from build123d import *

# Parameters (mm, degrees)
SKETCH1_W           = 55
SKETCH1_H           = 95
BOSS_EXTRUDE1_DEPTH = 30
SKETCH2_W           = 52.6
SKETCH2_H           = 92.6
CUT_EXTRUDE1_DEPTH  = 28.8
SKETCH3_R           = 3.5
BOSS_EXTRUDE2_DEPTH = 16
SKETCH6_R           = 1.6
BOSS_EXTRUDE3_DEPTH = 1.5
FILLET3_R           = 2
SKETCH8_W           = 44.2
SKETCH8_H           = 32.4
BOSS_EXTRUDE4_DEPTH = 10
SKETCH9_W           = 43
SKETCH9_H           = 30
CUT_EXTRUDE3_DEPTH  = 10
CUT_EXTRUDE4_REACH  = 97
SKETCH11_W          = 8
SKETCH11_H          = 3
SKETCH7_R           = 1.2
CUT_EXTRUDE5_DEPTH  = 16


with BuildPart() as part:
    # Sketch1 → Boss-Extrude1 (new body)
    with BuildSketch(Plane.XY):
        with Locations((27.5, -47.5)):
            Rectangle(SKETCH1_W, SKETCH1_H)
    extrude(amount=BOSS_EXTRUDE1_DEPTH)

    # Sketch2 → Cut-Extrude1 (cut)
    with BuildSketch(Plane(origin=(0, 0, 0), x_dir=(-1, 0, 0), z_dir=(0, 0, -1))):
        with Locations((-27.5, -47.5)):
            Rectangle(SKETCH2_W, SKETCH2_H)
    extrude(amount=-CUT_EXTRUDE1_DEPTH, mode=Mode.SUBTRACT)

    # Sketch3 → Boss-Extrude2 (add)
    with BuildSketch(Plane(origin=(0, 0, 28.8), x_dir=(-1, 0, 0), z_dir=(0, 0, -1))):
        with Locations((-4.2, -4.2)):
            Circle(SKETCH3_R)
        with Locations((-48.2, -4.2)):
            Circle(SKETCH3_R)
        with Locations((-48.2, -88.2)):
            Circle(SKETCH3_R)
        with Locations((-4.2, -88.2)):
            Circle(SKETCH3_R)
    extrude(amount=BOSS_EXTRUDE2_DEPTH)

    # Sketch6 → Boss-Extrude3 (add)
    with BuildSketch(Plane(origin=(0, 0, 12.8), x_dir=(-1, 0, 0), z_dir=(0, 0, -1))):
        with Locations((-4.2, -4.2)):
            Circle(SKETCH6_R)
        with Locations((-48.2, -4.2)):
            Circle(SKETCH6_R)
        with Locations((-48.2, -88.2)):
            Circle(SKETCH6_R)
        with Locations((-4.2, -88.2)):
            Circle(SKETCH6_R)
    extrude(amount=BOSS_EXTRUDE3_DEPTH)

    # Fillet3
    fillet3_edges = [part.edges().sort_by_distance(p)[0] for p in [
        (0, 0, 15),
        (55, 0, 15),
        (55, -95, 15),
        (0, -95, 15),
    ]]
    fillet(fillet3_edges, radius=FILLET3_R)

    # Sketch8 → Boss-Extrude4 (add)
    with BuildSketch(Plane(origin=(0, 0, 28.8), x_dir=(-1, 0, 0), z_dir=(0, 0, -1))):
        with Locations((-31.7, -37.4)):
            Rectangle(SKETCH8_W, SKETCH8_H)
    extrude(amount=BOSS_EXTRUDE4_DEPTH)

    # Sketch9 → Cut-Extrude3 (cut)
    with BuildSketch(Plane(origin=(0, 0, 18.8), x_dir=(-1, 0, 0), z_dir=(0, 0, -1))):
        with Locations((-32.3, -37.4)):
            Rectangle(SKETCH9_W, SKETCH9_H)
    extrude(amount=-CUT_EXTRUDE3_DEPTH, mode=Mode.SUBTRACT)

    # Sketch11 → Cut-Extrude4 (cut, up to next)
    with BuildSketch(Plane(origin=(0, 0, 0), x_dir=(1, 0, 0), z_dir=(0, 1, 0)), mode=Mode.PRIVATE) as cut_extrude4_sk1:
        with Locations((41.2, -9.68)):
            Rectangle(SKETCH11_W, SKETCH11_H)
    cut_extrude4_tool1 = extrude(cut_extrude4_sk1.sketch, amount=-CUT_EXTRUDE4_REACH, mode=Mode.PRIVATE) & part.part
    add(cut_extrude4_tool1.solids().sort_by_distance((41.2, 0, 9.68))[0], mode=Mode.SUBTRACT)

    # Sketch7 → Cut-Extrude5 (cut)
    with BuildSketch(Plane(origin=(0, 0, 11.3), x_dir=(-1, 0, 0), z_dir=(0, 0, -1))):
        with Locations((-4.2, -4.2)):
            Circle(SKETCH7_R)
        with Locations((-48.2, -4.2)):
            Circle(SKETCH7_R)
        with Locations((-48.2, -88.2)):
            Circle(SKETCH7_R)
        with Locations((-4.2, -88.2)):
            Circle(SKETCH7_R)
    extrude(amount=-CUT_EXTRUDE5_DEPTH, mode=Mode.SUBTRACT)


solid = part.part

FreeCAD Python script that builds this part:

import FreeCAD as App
import Part
import Sketcher


def edges_at(feature, points):
    """Names of the edges that pass closest to the given points."""
    edges = feature.Shape.Edges
    near = lambda p: min(range(len(edges)), key=lambda i: edges[i].distToShape(Part.Vertex(*p))[0])
    return sorted({f"Edge{near(p) + 1}" for p in points})

doc = App.newDocument("Part")
params = doc.addObject("Spreadsheet::Sheet", "Params")
for row, (alias, value) in enumerate([
    ("sketch1_width", "55 mm"),
    ("sketch1_height", "95 mm"),
    ("pad1_length", "30 mm"),
    ("sketch2_width", "52.6 mm"),
    ("sketch2_height", "92.6 mm"),
    ("pocket1_length", "28.8 mm"),
    ("sketch3_diameter", "7 mm"),
    ("pad2_length", "16 mm"),
    ("sketch4_diameter", "3.2 mm"),
    ("pad3_length", "1.5 mm"),
    ("fillet_radius", "2 mm"),
    ("sketch5_width", "44.2 mm"),
    ("sketch5_height", "32.4 mm"),
    ("pad4_length", "10 mm"),
    ("sketch6_width", "43 mm"),
    ("sketch6_height", "30 mm"),
    ("pocket2_length", "10 mm"),
    ("sketch7_width", "8 mm"),
    ("sketch7_height", "3 mm"),
    ("sketch8_diameter", "2.4 mm"),
    ("pocket4_length", "16 mm"),
], start=1):
    params.set(f"A{row}", alias)
    params.set(f"B{row}", "=" + value)
    params.setAlias(f"B{row}", alias)

body = doc.addObject("PartDesign::Body", "Body")

# Sketch on XY plane
sketch1 = body.newObject("Sketcher::SketchObject", "Sketch")
sketch1.AttachmentSupport = (doc.getObject("XY_Plane"), [""])
sketch1.MapMode = "FlatFace"
sketch1.addGeometry([
    Part.LineSegment(App.Vector(0, 0, 0), App.Vector(0, -95, 0)),
    Part.LineSegment(App.Vector(0, -95, 0), App.Vector(55, -95, 0)),
    Part.LineSegment(App.Vector(55, -95, 0), App.Vector(55, 0, 0)),
    Part.LineSegment(App.Vector(55, 0, 0), App.Vector(0, 0, 0)),
], False)
sketch1.addConstraint([
    Sketcher.Constraint("Coincident", 0, 2, 1, 1),
    Sketcher.Constraint("Coincident", 1, 2, 2, 1),
    Sketcher.Constraint("Coincident", 2, 2, 3, 1),
    Sketcher.Constraint("Coincident", 3, 2, 0, 1),
    Sketcher.Constraint("Vertical", 0),
    Sketcher.Constraint("Horizontal", 1),
    Sketcher.Constraint("Vertical", 2),
    Sketcher.Constraint("Horizontal", 3),
    Sketcher.Constraint("Coincident", 3, 2, -1, 1),
    Sketcher.Constraint("DistanceX", 1, 1, 1, 2, 55.0),
    Sketcher.Constraint("DistanceY", 0, 2, 0, 1, 95.0),
])
sketch1.setExpression("Constraints[9]", "Params.sketch1_width")
sketch1.setExpression("Constraints[10]", "Params.sketch1_height")
pad1 = body.newObject("PartDesign::Pad", "Pad")
pad1.Profile = sketch1
pad1.setExpression("Length", "Params.pad1_length")

# Sketch on XY plane
sketch2 = body.newObject("Sketcher::SketchObject", "Sketch001")
sketch2.AttachmentSupport = (doc.getObject("XY_Plane"), [""])
sketch2.MapMode = "FlatFace"
sketch2.addGeometry([
    Part.LineSegment(App.Vector(53.8, -1.2, 0), App.Vector(53.8, -93.8, 0)),
    Part.LineSegment(App.Vector(53.8, -93.8, 0), App.Vector(1.2, -93.8, 0)),
    Part.LineSegment(App.Vector(1.2, -93.8, 0), App.Vector(1.2, -1.2, 0)),
    Part.LineSegment(App.Vector(1.2, -1.2, 0), App.Vector(53.8, -1.2, 0)),
], False)
sketch2.addConstraint([
    Sketcher.Constraint("Coincident", 0, 2, 1, 1),
    Sketcher.Constraint("Coincident", 1, 2, 2, 1),
    Sketcher.Constraint("Coincident", 2, 2, 3, 1),
    Sketcher.Constraint("Coincident", 3, 2, 0, 1),
    Sketcher.Constraint("Vertical", 0),
    Sketcher.Constraint("Horizontal", 1),
    Sketcher.Constraint("Vertical", 2),
    Sketcher.Constraint("Horizontal", 3),
    Sketcher.Constraint("DistanceX", 1, 2, 1, 1, 52.6),
    Sketcher.Constraint("DistanceY", 0, 2, 0, 1, 92.6),
    Sketcher.Constraint("DistanceX", -1, 1, 0, 2, 53.8),
    Sketcher.Constraint("DistanceY", 0, 2, -1, 1, 93.8),
])
sketch2.setExpression("Constraints[8]", "Params.sketch2_width")
sketch2.setExpression("Constraints[9]", "Params.sketch2_height")
pocket1 = body.newObject("PartDesign::Pocket", "Pocket")
pocket1.Profile = sketch2
pocket1.setExpression("Length", "Params.pocket1_length")
pocket1.Reversed = True

# Sketch on XY plane
sketch3 = body.newObject("Sketcher::SketchObject", "Sketch002")
sketch3.AttachmentSupport = (doc.getObject("XY_Plane"), [""])
sketch3.MapMode = "FlatFace"
sketch3.AttachmentOffset = App.Placement(App.Vector(0, 0, 28.8), App.Rotation())
sketch3.addGeometry([
    Part.Circle(App.Vector(4.2, -4.2, 0), App.Vector(0, 0, 1), 3.5),
    Part.Circle(App.Vector(48.2, -4.2, 0), App.Vector(0, 0, 1), 3.5),
    Part.Circle(App.Vector(48.2, -88.2, 0), App.Vector(0, 0, 1), 3.5),
    Part.Circle(App.Vector(4.2, -88.2, 0), App.Vector(0, 0, 1), 3.5),
], False)
sketch3.addConstraint([
    Sketcher.Constraint("Equal", 0, 1),
    Sketcher.Constraint("Equal", 1, 2),
    Sketcher.Constraint("Equal", 2, 3),
    Sketcher.Constraint("Horizontal", 0, 3, 1, 3),
    Sketcher.Constraint("Horizontal", 2, 3, 3, 3),
    Sketcher.Constraint("Vertical", 1, 3, 2, 3),
    Sketcher.Constraint("Vertical", 0, 3, 3, 3),
    Sketcher.Constraint("Diameter", 0, 7.0),
    Sketcher.Constraint("DistanceX", 0, 3, 1, 3, 44.0),
    Sketcher.Constraint("DistanceY", 2, 3, 1, 3, 84.0),
    Sketcher.Constraint("DistanceX", -1, 1, 0, 3, 4.2),
    Sketcher.Constraint("DistanceY", 0, 3, -1, 1, 4.2),
])
sketch3.setExpression("Constraints[7]", "Params.sketch3_diameter")
pad2 = body.newObject("PartDesign::Pad", "Pad001")
pad2.Profile = sketch3
pad2.setExpression("Length", "Params.pad2_length")
pad2.Reversed = True

# Sketch on XY plane
sketch4 = body.newObject("Sketcher::SketchObject", "Sketch003")
sketch4.AttachmentSupport = (doc.getObject("XY_Plane"), [""])
sketch4.MapMode = "FlatFace"
sketch4.AttachmentOffset = App.Placement(App.Vector(0, 0, 12.8), App.Rotation())
sketch4.addGeometry([
    Part.Circle(App.Vector(4.2, -4.2, 0), App.Vector(0, 0, 1), 1.6),
    Part.Circle(App.Vector(48.2, -4.2, 0), App.Vector(0, 0, 1), 1.6),
    Part.Circle(App.Vector(48.2, -88.2, 0), App.Vector(0, 0, 1), 1.6),
    Part.Circle(App.Vector(4.2, -88.2, 0), App.Vector(0, 0, 1), 1.6),
], False)
sketch4.addConstraint([
    Sketcher.Constraint("Equal", 0, 1),
    Sketcher.Constraint("Equal", 1, 2),
    Sketcher.Constraint("Equal", 2, 3),
    Sketcher.Constraint("Horizontal", 0, 3, 1, 3),
    Sketcher.Constraint("Horizontal", 2, 3, 3, 3),
    Sketcher.Constraint("Vertical", 1, 3, 2, 3),
    Sketcher.Constraint("Vertical", 0, 3, 3, 3),
    Sketcher.Constraint("Diameter", 0, 3.2),
    Sketcher.Constraint("DistanceX", 0, 3, 1, 3, 44.0),
    Sketcher.Constraint("DistanceY", 2, 3, 1, 3, 84.0),
    Sketcher.Constraint("DistanceX", -1, 1, 0, 3, 4.2),
    Sketcher.Constraint("DistanceY", 0, 3, -1, 1, 4.2),
])
sketch4.setExpression("Constraints[7]", "Params.sketch4_diameter")
pad3 = body.newObject("PartDesign::Pad", "Pad002")
pad3.Profile = sketch4
pad3.setExpression("Length", "Params.pad3_length")
pad3.Reversed = True
doc.recompute()

fillet = body.newObject("PartDesign::Fillet", "Fillet")
fillet.Base = (pad3, edges_at(pad3, [
    (0, 0, 15),
    (55, 0, 15),
    (55, -95, 15),
    (0, -95, 15),
]))
fillet.setExpression("Radius", "Params.fillet_radius")

# Sketch on XY plane
sketch5 = body.newObject("Sketcher::SketchObject", "Sketch004")
sketch5.AttachmentSupport = (doc.getObject("XY_Plane"), [""])
sketch5.MapMode = "FlatFace"
sketch5.AttachmentOffset = App.Placement(App.Vector(0, 0, 28.8), App.Rotation())
sketch5.addGeometry([
    Part.LineSegment(App.Vector(53.8, -21.2, 0), App.Vector(53.8, -53.6, 0)),
    Part.LineSegment(App.Vector(53.8, -53.6, 0), App.Vector(9.6, -53.6, 0)),
    Part.LineSegment(App.Vector(9.6, -53.6, 0), App.Vector(9.6, -21.2, 0)),
    Part.LineSegment(App.Vector(9.6, -21.2, 0), App.Vector(53.8, -21.2, 0)),
], False)
sketch5.addConstraint([
    Sketcher.Constraint("Coincident", 0, 2, 1, 1),
    Sketcher.Constraint("Coincident", 1, 2, 2, 1),
    Sketcher.Constraint("Coincident", 2, 2, 3, 1),
    Sketcher.Constraint("Coincident", 3, 2, 0, 1),
    Sketcher.Constraint("Vertical", 0),
    Sketcher.Constraint("Horizontal", 1),
    Sketcher.Constraint("Vertical", 2),
    Sketcher.Constraint("Horizontal", 3),
    Sketcher.Constraint("DistanceX", 1, 2, 1, 1, 44.2),
    Sketcher.Constraint("DistanceY", 0, 2, 0, 1, 32.4),
    Sketcher.Constraint("DistanceX", -1, 1, 0, 2, 53.8),
    Sketcher.Constraint("DistanceY", 0, 2, -1, 1, 53.6),
])
sketch5.setExpression("Constraints[8]", "Params.sketch5_width")
sketch5.setExpression("Constraints[9]", "Params.sketch5_height")
pad4 = body.newObject("PartDesign::Pad", "Pad003")
pad4.Profile = sketch5
pad4.setExpression("Length", "Params.pad4_length")
pad4.Reversed = True

# Sketch on XY plane
sketch6 = body.newObject("Sketcher::SketchObject", "Sketch005")
sketch6.AttachmentSupport = (doc.getObject("XY_Plane"), [""])
sketch6.MapMode = "FlatFace"
sketch6.AttachmentOffset = App.Placement(App.Vector(0, 0, 18.8), App.Rotation())
sketch6.addGeometry([
    Part.LineSegment(App.Vector(53.8, -22.4, 0), App.Vector(53.8, -52.4, 0)),
    Part.LineSegment(App.Vector(53.8, -52.4, 0), App.Vector(10.8, -52.4, 0)),
    Part.LineSegment(App.Vector(10.8, -52.4, 0), App.Vector(10.8, -22.4, 0)),
    Part.LineSegment(App.Vector(10.8, -22.4, 0), App.Vector(53.8, -22.4, 0)),
], False)
sketch6.addConstraint([
    Sketcher.Constraint("Coincident", 0, 2, 1, 1),
    Sketcher.Constraint("Coincident", 1, 2, 2, 1),
    Sketcher.Constraint("Coincident", 2, 2, 3, 1),
    Sketcher.Constraint("Coincident", 3, 2, 0, 1),
    Sketcher.Constraint("Vertical", 0),
    Sketcher.Constraint("Horizontal", 1),
    Sketcher.Constraint("Vertical", 2),
    Sketcher.Constraint("Horizontal", 3),
    Sketcher.Constraint("DistanceX", 1, 2, 1, 1, 43.0),
    Sketcher.Constraint("DistanceY", 0, 2, 0, 1, 30.0),
    Sketcher.Constraint("DistanceX", -1, 1, 0, 2, 53.8),
    Sketcher.Constraint("DistanceY", 0, 2, -1, 1, 52.4),
])
sketch6.setExpression("Constraints[8]", "Params.sketch6_width")
sketch6.setExpression("Constraints[9]", "Params.sketch6_height")
pocket2 = body.newObject("PartDesign::Pocket", "Pocket001")
pocket2.Profile = sketch6
pocket2.setExpression("Length", "Params.pocket2_length")
pocket2.Reversed = True

# Sketch on XZ plane
sketch7 = body.newObject("Sketcher::SketchObject", "Sketch006")
sketch7.AttachmentSupport = (doc.getObject("XZ_Plane"), [""])
sketch7.MapMode = "FlatFace"
sketch7.addGeometry([
    Part.LineSegment(App.Vector(37.2, 8.18, 0), App.Vector(37.2, 11.18, 0)),
    Part.LineSegment(App.Vector(37.2, 11.18, 0), App.Vector(45.2, 11.18, 0)),
    Part.LineSegment(App.Vector(45.2, 11.18, 0), App.Vector(45.2, 8.18, 0)),
    Part.LineSegment(App.Vector(45.2, 8.18, 0), App.Vector(37.2, 8.18, 0)),
], False)
sketch7.addConstraint([
    Sketcher.Constraint("Coincident", 0, 2, 1, 1),
    Sketcher.Constraint("Coincident", 1, 2, 2, 1),
    Sketcher.Constraint("Coincident", 2, 2, 3, 1),
    Sketcher.Constraint("Coincident", 3, 2, 0, 1),
    Sketcher.Constraint("Vertical", 0),
    Sketcher.Constraint("Horizontal", 1),
    Sketcher.Constraint("Vertical", 2),
    Sketcher.Constraint("Horizontal", 3),
    Sketcher.Constraint("DistanceX", 1, 1, 1, 2, 8.0),
    Sketcher.Constraint("DistanceY", 0, 1, 0, 2, 3.0),
    Sketcher.Constraint("DistanceX", -1, 1, 0, 2, 37.2),
    Sketcher.Constraint("DistanceY", -1, 1, 0, 2, 11.18),
])
sketch7.setExpression("Constraints[8]", "Params.sketch7_width")
sketch7.setExpression("Constraints[9]", "Params.sketch7_height")
pocket3 = body.newObject("PartDesign::Pocket", "Pocket002")
pocket3.Profile = sketch7
pocket3.Type = "UpToFirst"
pocket3.Reversed = True

# Sketch on XY plane
sketch8 = body.newObject("Sketcher::SketchObject", "Sketch007")
sketch8.AttachmentSupport = (doc.getObject("XY_Plane"), [""])
sketch8.MapMode = "FlatFace"
sketch8.AttachmentOffset = App.Placement(App.Vector(0, 0, 11.3), App.Rotation())
sketch8.addGeometry([
    Part.Circle(App.Vector(4.2, -4.2, 0), App.Vector(0, 0, 1), 1.2),
    Part.Circle(App.Vector(48.2, -4.2, 0), App.Vector(0, 0, 1), 1.2),
    Part.Circle(App.Vector(48.2, -88.2, 0), App.Vector(0, 0, 1), 1.2),
    Part.Circle(App.Vector(4.2, -88.2, 0), App.Vector(0, 0, 1), 1.2),
], False)
sketch8.addConstraint([
    Sketcher.Constraint("Equal", 0, 1),
    Sketcher.Constraint("Equal", 1, 2),
    Sketcher.Constraint("Equal", 2, 3),
    Sketcher.Constraint("Horizontal", 0, 3, 1, 3),
    Sketcher.Constraint("Horizontal", 2, 3, 3, 3),
    Sketcher.Constraint("Vertical", 1, 3, 2, 3),
    Sketcher.Constraint("Vertical", 0, 3, 3, 3),
    Sketcher.Constraint("Diameter", 0, 2.4),
    Sketcher.Constraint("DistanceX", 0, 3, 1, 3, 44.0),
    Sketcher.Constraint("DistanceY", 2, 3, 1, 3, 84.0),
    Sketcher.Constraint("DistanceX", -1, 1, 0, 3, 4.2),
    Sketcher.Constraint("DistanceY", 0, 3, -1, 1, 4.2),
])
sketch8.setExpression("Constraints[7]", "Params.sketch8_diameter")
pocket4 = body.newObject("PartDesign::Pocket", "Pocket003")
pocket4.Profile = sketch8
pocket4.setExpression("Length", "Params.pocket4_length")
pocket4.Reversed = True

doc.recompute()
